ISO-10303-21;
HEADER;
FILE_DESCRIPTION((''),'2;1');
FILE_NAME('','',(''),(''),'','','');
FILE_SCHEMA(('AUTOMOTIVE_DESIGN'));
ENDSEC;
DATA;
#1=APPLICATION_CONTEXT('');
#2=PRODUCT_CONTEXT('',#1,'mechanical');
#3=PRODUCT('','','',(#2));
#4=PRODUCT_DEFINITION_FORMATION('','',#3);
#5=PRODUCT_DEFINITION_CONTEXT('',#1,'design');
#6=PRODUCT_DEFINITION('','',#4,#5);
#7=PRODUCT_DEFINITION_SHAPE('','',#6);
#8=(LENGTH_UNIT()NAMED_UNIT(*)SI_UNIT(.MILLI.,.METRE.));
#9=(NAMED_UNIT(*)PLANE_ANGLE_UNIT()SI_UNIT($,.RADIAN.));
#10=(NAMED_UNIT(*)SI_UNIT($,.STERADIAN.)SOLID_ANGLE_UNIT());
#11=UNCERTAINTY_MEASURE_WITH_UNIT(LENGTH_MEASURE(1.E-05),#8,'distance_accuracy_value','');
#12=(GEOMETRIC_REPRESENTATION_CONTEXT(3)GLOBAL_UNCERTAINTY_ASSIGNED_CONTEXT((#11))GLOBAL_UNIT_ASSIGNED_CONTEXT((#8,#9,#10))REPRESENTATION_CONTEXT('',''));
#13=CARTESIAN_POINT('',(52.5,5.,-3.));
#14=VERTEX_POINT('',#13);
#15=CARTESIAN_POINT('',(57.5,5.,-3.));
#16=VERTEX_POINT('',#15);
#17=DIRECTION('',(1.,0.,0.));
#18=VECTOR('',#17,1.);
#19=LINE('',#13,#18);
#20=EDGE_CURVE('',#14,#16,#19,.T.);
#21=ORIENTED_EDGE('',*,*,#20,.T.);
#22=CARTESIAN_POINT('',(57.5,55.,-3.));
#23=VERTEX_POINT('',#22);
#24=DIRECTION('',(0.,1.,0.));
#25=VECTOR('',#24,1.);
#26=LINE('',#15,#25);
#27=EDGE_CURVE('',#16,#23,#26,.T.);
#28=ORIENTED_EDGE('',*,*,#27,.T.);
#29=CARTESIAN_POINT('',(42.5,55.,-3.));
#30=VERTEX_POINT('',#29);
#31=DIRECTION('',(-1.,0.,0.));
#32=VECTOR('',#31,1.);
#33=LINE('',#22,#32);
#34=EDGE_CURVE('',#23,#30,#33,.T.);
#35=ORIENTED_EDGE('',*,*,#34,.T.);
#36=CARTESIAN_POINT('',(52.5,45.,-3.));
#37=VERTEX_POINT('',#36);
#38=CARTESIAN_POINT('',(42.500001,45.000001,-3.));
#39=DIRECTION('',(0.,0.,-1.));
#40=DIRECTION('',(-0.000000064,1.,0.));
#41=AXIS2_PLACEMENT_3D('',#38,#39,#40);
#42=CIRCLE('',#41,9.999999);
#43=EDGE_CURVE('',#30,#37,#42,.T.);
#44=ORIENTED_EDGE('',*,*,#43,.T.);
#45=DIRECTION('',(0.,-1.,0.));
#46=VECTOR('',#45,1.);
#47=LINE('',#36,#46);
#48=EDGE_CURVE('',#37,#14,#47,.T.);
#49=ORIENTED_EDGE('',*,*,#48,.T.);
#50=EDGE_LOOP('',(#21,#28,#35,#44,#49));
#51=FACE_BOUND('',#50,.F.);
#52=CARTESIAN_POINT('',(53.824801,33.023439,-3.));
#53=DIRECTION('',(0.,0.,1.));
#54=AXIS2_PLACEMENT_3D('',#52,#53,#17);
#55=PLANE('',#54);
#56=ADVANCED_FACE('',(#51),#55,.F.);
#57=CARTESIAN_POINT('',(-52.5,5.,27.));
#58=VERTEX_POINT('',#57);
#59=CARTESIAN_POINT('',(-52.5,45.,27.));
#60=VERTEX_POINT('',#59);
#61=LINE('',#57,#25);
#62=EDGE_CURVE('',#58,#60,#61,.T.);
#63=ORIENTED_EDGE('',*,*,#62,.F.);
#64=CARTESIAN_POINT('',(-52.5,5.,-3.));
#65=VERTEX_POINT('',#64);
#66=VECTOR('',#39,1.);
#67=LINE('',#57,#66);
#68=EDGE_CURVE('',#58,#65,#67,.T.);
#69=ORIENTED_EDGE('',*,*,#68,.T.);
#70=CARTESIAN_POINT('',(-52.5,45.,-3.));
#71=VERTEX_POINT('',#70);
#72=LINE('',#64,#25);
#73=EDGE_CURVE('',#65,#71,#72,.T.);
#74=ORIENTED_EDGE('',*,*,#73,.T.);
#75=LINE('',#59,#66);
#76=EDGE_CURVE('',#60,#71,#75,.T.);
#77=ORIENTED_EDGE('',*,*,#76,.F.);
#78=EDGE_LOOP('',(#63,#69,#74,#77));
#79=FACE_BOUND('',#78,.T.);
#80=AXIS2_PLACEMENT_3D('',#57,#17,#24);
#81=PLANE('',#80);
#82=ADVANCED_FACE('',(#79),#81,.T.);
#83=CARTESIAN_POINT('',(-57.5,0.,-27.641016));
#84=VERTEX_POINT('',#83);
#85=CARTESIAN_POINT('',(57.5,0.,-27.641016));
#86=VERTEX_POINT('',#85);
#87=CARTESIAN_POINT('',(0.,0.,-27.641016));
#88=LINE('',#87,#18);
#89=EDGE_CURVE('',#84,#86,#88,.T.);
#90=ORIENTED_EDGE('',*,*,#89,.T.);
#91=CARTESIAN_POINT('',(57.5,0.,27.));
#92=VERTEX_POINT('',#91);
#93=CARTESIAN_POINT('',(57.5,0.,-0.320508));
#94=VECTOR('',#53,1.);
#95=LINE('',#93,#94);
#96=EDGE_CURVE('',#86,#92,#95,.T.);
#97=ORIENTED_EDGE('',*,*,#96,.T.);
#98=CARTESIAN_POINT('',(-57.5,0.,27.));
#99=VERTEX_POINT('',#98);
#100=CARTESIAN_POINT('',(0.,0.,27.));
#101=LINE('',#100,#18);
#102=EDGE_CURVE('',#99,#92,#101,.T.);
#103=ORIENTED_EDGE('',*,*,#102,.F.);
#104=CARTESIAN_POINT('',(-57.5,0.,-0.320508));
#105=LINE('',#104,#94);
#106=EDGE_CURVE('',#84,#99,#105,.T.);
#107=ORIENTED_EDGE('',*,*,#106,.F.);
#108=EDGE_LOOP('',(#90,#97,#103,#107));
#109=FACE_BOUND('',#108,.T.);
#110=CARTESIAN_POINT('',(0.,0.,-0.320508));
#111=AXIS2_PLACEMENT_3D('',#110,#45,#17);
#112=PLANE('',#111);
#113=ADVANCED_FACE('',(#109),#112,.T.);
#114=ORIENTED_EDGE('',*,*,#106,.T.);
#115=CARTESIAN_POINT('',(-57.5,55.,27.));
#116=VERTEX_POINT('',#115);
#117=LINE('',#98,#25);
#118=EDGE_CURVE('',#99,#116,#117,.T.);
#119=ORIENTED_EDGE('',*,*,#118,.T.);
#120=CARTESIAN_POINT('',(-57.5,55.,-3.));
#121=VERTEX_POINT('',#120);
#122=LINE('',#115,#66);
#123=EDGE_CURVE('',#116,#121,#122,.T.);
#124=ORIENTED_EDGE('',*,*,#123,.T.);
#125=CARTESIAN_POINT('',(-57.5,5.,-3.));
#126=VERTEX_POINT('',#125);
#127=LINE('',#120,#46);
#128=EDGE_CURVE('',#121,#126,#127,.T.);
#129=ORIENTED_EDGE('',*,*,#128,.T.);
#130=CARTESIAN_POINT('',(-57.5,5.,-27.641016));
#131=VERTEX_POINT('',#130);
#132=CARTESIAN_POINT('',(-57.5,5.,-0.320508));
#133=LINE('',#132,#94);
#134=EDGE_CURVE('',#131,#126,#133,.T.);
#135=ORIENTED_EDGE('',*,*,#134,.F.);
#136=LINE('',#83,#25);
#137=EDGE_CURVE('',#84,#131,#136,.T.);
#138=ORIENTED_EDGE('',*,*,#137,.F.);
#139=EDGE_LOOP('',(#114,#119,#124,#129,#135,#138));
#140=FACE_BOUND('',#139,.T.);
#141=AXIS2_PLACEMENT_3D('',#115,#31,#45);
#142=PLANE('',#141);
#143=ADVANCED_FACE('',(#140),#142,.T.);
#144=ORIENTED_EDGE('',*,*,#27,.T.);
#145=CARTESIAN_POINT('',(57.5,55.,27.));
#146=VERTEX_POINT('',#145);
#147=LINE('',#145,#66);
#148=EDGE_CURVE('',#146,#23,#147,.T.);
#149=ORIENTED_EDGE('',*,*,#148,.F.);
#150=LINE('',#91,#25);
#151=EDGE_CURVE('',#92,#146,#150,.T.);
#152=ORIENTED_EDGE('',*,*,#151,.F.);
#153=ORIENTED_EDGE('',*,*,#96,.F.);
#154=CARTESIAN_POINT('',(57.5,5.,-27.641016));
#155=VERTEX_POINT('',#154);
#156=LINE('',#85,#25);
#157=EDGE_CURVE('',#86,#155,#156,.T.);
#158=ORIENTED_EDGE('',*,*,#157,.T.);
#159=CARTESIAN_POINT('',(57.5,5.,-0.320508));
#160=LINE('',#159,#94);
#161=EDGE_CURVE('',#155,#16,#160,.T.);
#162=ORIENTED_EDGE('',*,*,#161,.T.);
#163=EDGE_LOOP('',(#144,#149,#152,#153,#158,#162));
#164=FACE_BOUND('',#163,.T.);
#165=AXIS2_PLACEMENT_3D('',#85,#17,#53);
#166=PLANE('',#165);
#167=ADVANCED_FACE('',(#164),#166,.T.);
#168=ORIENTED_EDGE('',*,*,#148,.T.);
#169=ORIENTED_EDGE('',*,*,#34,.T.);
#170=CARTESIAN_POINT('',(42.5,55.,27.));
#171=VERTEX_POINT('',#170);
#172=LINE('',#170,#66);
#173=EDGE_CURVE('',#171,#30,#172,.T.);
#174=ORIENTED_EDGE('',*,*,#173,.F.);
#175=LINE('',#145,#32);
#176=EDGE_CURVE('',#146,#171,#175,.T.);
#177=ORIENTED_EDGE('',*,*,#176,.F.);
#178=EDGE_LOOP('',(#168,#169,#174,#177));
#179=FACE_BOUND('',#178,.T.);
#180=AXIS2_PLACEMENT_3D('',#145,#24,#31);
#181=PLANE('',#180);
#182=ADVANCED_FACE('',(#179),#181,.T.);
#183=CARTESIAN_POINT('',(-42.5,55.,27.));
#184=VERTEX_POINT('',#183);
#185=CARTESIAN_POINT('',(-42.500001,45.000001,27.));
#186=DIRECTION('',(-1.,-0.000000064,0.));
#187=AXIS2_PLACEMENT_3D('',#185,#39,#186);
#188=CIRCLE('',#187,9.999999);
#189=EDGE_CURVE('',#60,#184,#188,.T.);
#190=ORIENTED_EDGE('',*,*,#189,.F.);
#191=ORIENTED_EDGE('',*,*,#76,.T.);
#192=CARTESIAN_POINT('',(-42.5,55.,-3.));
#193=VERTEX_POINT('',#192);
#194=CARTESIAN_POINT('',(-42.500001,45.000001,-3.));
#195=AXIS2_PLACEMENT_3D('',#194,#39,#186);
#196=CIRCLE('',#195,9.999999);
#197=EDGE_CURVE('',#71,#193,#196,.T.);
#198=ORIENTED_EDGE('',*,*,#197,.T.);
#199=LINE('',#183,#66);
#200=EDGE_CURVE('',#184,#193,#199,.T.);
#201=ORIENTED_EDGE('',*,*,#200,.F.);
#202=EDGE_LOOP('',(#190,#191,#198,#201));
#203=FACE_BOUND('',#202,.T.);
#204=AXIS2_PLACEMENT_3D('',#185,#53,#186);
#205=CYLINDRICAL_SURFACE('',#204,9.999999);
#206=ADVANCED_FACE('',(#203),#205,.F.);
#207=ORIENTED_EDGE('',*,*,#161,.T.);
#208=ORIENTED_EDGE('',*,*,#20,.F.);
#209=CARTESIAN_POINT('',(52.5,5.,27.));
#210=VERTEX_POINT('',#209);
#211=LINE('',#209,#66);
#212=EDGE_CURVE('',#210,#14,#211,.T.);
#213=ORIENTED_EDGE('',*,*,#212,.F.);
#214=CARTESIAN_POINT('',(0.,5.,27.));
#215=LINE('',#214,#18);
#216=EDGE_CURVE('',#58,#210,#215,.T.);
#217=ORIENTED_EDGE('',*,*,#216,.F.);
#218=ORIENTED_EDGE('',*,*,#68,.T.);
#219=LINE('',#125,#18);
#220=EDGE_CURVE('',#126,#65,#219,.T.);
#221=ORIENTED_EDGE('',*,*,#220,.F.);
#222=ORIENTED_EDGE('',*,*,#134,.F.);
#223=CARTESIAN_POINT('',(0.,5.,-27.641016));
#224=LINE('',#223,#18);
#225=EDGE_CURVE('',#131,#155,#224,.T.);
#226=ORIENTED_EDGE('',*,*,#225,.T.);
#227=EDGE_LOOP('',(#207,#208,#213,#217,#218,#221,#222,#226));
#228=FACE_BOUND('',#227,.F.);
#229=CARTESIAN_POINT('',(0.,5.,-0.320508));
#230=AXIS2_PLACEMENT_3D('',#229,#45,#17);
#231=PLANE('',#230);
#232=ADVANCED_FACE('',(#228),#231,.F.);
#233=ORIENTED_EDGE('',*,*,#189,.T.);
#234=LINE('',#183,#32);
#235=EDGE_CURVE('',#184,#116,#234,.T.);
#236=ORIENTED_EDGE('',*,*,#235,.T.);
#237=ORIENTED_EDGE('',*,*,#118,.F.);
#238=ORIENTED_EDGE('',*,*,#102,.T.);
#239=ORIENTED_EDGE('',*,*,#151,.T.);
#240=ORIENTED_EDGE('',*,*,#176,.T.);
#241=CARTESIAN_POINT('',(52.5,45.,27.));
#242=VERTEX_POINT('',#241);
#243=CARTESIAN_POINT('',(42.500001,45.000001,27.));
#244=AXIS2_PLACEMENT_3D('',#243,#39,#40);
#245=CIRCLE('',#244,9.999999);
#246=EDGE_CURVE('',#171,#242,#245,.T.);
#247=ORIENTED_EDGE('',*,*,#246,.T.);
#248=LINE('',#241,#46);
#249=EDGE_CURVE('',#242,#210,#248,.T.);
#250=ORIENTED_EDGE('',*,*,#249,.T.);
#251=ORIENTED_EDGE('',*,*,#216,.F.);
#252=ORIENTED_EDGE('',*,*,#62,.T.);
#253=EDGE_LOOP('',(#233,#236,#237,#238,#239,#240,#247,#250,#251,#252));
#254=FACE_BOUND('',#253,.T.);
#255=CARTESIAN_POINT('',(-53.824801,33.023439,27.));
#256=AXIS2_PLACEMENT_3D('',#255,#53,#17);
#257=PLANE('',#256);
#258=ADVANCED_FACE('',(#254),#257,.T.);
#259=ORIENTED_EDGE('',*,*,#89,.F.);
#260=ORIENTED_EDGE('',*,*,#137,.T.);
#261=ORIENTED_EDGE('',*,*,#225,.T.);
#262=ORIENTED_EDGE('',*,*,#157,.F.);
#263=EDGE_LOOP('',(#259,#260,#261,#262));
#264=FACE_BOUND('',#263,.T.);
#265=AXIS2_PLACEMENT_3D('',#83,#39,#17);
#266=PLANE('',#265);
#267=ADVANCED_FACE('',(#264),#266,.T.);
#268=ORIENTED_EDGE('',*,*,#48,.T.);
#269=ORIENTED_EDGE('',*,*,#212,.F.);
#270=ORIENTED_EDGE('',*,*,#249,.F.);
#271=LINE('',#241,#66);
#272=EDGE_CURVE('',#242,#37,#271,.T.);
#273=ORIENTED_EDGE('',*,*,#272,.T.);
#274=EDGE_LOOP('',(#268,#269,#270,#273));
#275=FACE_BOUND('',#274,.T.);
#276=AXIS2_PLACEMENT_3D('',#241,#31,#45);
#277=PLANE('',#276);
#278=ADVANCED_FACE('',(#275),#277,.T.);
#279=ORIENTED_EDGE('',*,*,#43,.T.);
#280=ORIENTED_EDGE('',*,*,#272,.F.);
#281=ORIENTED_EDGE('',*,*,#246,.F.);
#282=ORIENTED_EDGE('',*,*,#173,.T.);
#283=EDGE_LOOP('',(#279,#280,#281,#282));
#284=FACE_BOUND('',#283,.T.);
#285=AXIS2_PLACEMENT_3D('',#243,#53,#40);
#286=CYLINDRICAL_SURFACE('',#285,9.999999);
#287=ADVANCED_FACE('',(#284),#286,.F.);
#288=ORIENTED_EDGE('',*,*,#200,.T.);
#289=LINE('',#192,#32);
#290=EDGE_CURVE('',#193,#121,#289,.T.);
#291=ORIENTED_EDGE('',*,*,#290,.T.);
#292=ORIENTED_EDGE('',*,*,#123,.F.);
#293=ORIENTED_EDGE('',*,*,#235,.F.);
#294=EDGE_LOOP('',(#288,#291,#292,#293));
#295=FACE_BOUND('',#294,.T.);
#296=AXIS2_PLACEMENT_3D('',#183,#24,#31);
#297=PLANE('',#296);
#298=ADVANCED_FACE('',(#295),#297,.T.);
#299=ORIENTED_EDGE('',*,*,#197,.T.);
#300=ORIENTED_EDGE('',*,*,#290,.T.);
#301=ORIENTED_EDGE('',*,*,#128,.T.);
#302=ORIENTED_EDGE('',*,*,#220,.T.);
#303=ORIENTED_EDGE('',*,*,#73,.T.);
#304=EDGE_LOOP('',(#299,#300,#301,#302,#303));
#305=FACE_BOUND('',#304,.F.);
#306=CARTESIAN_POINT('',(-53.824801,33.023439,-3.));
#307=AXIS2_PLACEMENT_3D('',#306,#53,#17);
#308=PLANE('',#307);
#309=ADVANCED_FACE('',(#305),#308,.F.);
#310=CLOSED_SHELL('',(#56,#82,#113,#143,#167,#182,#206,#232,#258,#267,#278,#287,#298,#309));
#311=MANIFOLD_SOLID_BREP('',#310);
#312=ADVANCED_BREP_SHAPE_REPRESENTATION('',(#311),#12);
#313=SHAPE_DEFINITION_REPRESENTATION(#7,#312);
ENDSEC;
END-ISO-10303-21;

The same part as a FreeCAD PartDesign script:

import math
import FreeCAD as App
import Part
import Sketcher
from FreeCAD import Vector
Q = App.Units.Quantity

doc = App.newDocument("Part")
body = doc.addObject("PartDesign::Body", "Body")

# Sketch on XZ plane
sketch1 = body.newObject("Sketcher::SketchObject", "Sketch")
sketch1.AttachmentSupport = (doc.getObject("XZ_Plane"), [""])
sketch1.MapMode = "FlatFace"
sketch1.addGeometry(Part.LineSegment(Vector(-58, 27, 0), Vector(-58, -28, 0)), False)
sketch1.addGeometry(Part.LineSegment(Vector(-58, -28, 0), Vector(58, -28, 0)), False)
sketch1.addGeometry(Part.LineSegment(Vector(58, -28, 0), Vector(58, 27, 0)), False)
sketch1.addGeometry(Part.LineSegment(Vector(58, 27, 0), Vector(-58, 27, 0)), False)
sketch1.addConstraint(Sketcher.Constraint("Coincident", 0, 2, 1, 1))
sketch1.addConstraint(Sketcher.Constraint("Coincident", 1, 2, 2, 1))
sketch1.addConstraint(Sketcher.Constraint("Coincident", 2, 2, 3, 1))
sketch1.addConstraint(Sketcher.Constraint("Coincident", 3, 2, 0, 1))
sketch1.addConstraint(Sketcher.Constraint("Vertical", 0))
sketch1.addConstraint(Sketcher.Constraint("Horizontal", 1))
sketch1.addConstraint(Sketcher.Constraint("Vertical", 2))
sketch1.addConstraint(Sketcher.Constraint("Horizontal", 3))
sketch1.addConstraint(Sketcher.Constraint("DistanceX", 1, 1, 1, 2, Q("115 mm")))
sketch1.addConstraint(Sketcher.Constraint("DistanceY", -1, 1, 2, 2, Q("27 mm")))
sketch1.addConstraint(Sketcher.Constraint("DistanceX", 0, 2, -1, 1, Q("57.5 mm")))
sketch1.addConstraint(Sketcher.Constraint("DistanceY", 0, 2, 0, 1, Q("54.641016 mm")))
pad1 = body.newObject("PartDesign::Pad", "Pad")
pad1.Profile = sketch1
pad1.Length = 5
pad1.Reversed = True

# Sketch on XY plane
sketch2 = body.newObject("Sketcher::SketchObject", "Sketch001")
sketch2.AttachmentSupport = (doc.getObject("XY_Plane"), [""])
sketch2.MapMode = "FlatFace"
sketch2.AttachmentOffset = App.Placement(Vector(0, 0, 27), App.Rotation())
sketch2.addGeometry(Part.LineSegment(Vector(-58, 55, 0), Vector(-58, 5, 0)), False)
sketch2.addGeometry(Part.LineSegment(Vector(-58, 5, 0), Vector(-52, 5, 0)), False)
sketch2.addGeometry(Part.LineSegment(Vector(-52, 5, 0), Vector(-52, 45, 0)), False)
sketch2.addGeometry(Part.ArcOfCircle(Part.Circle(Vector(-43, 45, 0), Vector(0, 0, 1), 10), math.radians(90), math.radians(180)), False)
sketch2.addGeometry(Part.LineSegment(Vector(-42, 55, 0), Vector(-58, 55, 0)), False)
sketch2.addGeometry(Part.LineSegment(Vector(52, 5, 0), Vector(58, 5, 0)), False)
sketch2.addGeometry(Part.LineSegment(Vector(58, 5, 0), Vector(58, 55, 0)), False)
sketch2.addGeometry(Part.LineSegment(Vector(58, 55, 0), Vector(42, 55, 0)), False)
sketch2.addGeometry(Part.ArcOfCircle(Part.Circle(Vector(43, 45, 0), Vector(0, 0, 1), 10), math.radians(0), math.radians(90)), False)
sketch2.addGeometry(Part.LineSegment(Vector(52, 45, 0), Vector(52, 5, 0)), False)
sketch2.addConstraint(Sketcher.Constraint("Coincident", 0, 2, 1, 1))
sketch2.addConstraint(Sketcher.Constraint("Coincident", 1, 2, 2, 1))
sketch2.addConstraint(Sketcher.Constraint("Tangent", 2, 2, 3, 2))
sketch2.addConstraint(Sketcher.Constraint("Tangent", 3, 1, 4, 1))
sketch2.addConstraint(Sketcher.Constraint("Coincident", 4, 2, 0, 1))
sketch2.addConstraint(Sketcher.Constraint("Coincident", 5, 2, 6, 1))
sketch2.addConstraint(Sketcher.Constraint("Coincident", 6, 2, 7, 1))
sketch2.addConstraint(Sketcher.Constraint("Tangent", 7, 2, 8, 2))
sketch2.addConstraint(Sketcher.Constraint("Tangent", 8, 1, 9, 1))
sketch2.addConstraint(Sketcher.Constraint("Coincident", 9, 2, 5, 1))
sketch2.addConstraint(Sketcher.Constraint("Vertical", 0))
sketch2.addConstraint(Sketcher.Constraint("Horizontal", 1))
sketch2.addConstraint(Sketcher.Constraint("Vertical", 2))
sketch2.addConstraint(Sketcher.Constraint("Horizontal", 4))
sketch2.addConstraint(Sketcher.Constraint("Horizontal", 5))
sketch2.addConstraint(Sketcher.Constraint("Vertical", 6))
sketch2.addConstraint(Sketcher.Constraint("Horizontal", 7))
sketch2.addConstraint(Sketcher.Constraint("Vertical", 9))
sketch2.addConstraint(Sketcher.Constraint("Equal", 3, 8))
sketch2.addConstraint(Sketcher.Constraint("Symmetric", 3, 3, 8, 3, -2))
sketch2.addConstraint(Sketcher.Constraint("Symmetric", 0, 2, 5, 2, -2))
sketch2.addConstraint(Sketcher.Constraint("Radius", 3, Q("9.999999 mm")))
sketch2.addConstraint(Sketcher.Constraint("DistanceX", 1, 1, 1, 2, Q("5 mm")))
sketch2.addConstraint(Sketcher.Constraint("DistanceY", 0, 2, 0, 1, Q("50 mm")))
sketch2.addConstraint(Sketcher.Constraint("DistanceY", -1, 1, 3, 3, Q("45.000001 mm")))
sketch2.addConstraint(Sketcher.Constraint("DistanceX", 3, 3, 8, 3, Q("85.000001 mm")))
pad2 = body.newObject("PartDesign::Pad", "Pad001")
pad2.Profile = sketch2
pad2.Length = 30
pad2.Reversed = True

doc.recompute()
